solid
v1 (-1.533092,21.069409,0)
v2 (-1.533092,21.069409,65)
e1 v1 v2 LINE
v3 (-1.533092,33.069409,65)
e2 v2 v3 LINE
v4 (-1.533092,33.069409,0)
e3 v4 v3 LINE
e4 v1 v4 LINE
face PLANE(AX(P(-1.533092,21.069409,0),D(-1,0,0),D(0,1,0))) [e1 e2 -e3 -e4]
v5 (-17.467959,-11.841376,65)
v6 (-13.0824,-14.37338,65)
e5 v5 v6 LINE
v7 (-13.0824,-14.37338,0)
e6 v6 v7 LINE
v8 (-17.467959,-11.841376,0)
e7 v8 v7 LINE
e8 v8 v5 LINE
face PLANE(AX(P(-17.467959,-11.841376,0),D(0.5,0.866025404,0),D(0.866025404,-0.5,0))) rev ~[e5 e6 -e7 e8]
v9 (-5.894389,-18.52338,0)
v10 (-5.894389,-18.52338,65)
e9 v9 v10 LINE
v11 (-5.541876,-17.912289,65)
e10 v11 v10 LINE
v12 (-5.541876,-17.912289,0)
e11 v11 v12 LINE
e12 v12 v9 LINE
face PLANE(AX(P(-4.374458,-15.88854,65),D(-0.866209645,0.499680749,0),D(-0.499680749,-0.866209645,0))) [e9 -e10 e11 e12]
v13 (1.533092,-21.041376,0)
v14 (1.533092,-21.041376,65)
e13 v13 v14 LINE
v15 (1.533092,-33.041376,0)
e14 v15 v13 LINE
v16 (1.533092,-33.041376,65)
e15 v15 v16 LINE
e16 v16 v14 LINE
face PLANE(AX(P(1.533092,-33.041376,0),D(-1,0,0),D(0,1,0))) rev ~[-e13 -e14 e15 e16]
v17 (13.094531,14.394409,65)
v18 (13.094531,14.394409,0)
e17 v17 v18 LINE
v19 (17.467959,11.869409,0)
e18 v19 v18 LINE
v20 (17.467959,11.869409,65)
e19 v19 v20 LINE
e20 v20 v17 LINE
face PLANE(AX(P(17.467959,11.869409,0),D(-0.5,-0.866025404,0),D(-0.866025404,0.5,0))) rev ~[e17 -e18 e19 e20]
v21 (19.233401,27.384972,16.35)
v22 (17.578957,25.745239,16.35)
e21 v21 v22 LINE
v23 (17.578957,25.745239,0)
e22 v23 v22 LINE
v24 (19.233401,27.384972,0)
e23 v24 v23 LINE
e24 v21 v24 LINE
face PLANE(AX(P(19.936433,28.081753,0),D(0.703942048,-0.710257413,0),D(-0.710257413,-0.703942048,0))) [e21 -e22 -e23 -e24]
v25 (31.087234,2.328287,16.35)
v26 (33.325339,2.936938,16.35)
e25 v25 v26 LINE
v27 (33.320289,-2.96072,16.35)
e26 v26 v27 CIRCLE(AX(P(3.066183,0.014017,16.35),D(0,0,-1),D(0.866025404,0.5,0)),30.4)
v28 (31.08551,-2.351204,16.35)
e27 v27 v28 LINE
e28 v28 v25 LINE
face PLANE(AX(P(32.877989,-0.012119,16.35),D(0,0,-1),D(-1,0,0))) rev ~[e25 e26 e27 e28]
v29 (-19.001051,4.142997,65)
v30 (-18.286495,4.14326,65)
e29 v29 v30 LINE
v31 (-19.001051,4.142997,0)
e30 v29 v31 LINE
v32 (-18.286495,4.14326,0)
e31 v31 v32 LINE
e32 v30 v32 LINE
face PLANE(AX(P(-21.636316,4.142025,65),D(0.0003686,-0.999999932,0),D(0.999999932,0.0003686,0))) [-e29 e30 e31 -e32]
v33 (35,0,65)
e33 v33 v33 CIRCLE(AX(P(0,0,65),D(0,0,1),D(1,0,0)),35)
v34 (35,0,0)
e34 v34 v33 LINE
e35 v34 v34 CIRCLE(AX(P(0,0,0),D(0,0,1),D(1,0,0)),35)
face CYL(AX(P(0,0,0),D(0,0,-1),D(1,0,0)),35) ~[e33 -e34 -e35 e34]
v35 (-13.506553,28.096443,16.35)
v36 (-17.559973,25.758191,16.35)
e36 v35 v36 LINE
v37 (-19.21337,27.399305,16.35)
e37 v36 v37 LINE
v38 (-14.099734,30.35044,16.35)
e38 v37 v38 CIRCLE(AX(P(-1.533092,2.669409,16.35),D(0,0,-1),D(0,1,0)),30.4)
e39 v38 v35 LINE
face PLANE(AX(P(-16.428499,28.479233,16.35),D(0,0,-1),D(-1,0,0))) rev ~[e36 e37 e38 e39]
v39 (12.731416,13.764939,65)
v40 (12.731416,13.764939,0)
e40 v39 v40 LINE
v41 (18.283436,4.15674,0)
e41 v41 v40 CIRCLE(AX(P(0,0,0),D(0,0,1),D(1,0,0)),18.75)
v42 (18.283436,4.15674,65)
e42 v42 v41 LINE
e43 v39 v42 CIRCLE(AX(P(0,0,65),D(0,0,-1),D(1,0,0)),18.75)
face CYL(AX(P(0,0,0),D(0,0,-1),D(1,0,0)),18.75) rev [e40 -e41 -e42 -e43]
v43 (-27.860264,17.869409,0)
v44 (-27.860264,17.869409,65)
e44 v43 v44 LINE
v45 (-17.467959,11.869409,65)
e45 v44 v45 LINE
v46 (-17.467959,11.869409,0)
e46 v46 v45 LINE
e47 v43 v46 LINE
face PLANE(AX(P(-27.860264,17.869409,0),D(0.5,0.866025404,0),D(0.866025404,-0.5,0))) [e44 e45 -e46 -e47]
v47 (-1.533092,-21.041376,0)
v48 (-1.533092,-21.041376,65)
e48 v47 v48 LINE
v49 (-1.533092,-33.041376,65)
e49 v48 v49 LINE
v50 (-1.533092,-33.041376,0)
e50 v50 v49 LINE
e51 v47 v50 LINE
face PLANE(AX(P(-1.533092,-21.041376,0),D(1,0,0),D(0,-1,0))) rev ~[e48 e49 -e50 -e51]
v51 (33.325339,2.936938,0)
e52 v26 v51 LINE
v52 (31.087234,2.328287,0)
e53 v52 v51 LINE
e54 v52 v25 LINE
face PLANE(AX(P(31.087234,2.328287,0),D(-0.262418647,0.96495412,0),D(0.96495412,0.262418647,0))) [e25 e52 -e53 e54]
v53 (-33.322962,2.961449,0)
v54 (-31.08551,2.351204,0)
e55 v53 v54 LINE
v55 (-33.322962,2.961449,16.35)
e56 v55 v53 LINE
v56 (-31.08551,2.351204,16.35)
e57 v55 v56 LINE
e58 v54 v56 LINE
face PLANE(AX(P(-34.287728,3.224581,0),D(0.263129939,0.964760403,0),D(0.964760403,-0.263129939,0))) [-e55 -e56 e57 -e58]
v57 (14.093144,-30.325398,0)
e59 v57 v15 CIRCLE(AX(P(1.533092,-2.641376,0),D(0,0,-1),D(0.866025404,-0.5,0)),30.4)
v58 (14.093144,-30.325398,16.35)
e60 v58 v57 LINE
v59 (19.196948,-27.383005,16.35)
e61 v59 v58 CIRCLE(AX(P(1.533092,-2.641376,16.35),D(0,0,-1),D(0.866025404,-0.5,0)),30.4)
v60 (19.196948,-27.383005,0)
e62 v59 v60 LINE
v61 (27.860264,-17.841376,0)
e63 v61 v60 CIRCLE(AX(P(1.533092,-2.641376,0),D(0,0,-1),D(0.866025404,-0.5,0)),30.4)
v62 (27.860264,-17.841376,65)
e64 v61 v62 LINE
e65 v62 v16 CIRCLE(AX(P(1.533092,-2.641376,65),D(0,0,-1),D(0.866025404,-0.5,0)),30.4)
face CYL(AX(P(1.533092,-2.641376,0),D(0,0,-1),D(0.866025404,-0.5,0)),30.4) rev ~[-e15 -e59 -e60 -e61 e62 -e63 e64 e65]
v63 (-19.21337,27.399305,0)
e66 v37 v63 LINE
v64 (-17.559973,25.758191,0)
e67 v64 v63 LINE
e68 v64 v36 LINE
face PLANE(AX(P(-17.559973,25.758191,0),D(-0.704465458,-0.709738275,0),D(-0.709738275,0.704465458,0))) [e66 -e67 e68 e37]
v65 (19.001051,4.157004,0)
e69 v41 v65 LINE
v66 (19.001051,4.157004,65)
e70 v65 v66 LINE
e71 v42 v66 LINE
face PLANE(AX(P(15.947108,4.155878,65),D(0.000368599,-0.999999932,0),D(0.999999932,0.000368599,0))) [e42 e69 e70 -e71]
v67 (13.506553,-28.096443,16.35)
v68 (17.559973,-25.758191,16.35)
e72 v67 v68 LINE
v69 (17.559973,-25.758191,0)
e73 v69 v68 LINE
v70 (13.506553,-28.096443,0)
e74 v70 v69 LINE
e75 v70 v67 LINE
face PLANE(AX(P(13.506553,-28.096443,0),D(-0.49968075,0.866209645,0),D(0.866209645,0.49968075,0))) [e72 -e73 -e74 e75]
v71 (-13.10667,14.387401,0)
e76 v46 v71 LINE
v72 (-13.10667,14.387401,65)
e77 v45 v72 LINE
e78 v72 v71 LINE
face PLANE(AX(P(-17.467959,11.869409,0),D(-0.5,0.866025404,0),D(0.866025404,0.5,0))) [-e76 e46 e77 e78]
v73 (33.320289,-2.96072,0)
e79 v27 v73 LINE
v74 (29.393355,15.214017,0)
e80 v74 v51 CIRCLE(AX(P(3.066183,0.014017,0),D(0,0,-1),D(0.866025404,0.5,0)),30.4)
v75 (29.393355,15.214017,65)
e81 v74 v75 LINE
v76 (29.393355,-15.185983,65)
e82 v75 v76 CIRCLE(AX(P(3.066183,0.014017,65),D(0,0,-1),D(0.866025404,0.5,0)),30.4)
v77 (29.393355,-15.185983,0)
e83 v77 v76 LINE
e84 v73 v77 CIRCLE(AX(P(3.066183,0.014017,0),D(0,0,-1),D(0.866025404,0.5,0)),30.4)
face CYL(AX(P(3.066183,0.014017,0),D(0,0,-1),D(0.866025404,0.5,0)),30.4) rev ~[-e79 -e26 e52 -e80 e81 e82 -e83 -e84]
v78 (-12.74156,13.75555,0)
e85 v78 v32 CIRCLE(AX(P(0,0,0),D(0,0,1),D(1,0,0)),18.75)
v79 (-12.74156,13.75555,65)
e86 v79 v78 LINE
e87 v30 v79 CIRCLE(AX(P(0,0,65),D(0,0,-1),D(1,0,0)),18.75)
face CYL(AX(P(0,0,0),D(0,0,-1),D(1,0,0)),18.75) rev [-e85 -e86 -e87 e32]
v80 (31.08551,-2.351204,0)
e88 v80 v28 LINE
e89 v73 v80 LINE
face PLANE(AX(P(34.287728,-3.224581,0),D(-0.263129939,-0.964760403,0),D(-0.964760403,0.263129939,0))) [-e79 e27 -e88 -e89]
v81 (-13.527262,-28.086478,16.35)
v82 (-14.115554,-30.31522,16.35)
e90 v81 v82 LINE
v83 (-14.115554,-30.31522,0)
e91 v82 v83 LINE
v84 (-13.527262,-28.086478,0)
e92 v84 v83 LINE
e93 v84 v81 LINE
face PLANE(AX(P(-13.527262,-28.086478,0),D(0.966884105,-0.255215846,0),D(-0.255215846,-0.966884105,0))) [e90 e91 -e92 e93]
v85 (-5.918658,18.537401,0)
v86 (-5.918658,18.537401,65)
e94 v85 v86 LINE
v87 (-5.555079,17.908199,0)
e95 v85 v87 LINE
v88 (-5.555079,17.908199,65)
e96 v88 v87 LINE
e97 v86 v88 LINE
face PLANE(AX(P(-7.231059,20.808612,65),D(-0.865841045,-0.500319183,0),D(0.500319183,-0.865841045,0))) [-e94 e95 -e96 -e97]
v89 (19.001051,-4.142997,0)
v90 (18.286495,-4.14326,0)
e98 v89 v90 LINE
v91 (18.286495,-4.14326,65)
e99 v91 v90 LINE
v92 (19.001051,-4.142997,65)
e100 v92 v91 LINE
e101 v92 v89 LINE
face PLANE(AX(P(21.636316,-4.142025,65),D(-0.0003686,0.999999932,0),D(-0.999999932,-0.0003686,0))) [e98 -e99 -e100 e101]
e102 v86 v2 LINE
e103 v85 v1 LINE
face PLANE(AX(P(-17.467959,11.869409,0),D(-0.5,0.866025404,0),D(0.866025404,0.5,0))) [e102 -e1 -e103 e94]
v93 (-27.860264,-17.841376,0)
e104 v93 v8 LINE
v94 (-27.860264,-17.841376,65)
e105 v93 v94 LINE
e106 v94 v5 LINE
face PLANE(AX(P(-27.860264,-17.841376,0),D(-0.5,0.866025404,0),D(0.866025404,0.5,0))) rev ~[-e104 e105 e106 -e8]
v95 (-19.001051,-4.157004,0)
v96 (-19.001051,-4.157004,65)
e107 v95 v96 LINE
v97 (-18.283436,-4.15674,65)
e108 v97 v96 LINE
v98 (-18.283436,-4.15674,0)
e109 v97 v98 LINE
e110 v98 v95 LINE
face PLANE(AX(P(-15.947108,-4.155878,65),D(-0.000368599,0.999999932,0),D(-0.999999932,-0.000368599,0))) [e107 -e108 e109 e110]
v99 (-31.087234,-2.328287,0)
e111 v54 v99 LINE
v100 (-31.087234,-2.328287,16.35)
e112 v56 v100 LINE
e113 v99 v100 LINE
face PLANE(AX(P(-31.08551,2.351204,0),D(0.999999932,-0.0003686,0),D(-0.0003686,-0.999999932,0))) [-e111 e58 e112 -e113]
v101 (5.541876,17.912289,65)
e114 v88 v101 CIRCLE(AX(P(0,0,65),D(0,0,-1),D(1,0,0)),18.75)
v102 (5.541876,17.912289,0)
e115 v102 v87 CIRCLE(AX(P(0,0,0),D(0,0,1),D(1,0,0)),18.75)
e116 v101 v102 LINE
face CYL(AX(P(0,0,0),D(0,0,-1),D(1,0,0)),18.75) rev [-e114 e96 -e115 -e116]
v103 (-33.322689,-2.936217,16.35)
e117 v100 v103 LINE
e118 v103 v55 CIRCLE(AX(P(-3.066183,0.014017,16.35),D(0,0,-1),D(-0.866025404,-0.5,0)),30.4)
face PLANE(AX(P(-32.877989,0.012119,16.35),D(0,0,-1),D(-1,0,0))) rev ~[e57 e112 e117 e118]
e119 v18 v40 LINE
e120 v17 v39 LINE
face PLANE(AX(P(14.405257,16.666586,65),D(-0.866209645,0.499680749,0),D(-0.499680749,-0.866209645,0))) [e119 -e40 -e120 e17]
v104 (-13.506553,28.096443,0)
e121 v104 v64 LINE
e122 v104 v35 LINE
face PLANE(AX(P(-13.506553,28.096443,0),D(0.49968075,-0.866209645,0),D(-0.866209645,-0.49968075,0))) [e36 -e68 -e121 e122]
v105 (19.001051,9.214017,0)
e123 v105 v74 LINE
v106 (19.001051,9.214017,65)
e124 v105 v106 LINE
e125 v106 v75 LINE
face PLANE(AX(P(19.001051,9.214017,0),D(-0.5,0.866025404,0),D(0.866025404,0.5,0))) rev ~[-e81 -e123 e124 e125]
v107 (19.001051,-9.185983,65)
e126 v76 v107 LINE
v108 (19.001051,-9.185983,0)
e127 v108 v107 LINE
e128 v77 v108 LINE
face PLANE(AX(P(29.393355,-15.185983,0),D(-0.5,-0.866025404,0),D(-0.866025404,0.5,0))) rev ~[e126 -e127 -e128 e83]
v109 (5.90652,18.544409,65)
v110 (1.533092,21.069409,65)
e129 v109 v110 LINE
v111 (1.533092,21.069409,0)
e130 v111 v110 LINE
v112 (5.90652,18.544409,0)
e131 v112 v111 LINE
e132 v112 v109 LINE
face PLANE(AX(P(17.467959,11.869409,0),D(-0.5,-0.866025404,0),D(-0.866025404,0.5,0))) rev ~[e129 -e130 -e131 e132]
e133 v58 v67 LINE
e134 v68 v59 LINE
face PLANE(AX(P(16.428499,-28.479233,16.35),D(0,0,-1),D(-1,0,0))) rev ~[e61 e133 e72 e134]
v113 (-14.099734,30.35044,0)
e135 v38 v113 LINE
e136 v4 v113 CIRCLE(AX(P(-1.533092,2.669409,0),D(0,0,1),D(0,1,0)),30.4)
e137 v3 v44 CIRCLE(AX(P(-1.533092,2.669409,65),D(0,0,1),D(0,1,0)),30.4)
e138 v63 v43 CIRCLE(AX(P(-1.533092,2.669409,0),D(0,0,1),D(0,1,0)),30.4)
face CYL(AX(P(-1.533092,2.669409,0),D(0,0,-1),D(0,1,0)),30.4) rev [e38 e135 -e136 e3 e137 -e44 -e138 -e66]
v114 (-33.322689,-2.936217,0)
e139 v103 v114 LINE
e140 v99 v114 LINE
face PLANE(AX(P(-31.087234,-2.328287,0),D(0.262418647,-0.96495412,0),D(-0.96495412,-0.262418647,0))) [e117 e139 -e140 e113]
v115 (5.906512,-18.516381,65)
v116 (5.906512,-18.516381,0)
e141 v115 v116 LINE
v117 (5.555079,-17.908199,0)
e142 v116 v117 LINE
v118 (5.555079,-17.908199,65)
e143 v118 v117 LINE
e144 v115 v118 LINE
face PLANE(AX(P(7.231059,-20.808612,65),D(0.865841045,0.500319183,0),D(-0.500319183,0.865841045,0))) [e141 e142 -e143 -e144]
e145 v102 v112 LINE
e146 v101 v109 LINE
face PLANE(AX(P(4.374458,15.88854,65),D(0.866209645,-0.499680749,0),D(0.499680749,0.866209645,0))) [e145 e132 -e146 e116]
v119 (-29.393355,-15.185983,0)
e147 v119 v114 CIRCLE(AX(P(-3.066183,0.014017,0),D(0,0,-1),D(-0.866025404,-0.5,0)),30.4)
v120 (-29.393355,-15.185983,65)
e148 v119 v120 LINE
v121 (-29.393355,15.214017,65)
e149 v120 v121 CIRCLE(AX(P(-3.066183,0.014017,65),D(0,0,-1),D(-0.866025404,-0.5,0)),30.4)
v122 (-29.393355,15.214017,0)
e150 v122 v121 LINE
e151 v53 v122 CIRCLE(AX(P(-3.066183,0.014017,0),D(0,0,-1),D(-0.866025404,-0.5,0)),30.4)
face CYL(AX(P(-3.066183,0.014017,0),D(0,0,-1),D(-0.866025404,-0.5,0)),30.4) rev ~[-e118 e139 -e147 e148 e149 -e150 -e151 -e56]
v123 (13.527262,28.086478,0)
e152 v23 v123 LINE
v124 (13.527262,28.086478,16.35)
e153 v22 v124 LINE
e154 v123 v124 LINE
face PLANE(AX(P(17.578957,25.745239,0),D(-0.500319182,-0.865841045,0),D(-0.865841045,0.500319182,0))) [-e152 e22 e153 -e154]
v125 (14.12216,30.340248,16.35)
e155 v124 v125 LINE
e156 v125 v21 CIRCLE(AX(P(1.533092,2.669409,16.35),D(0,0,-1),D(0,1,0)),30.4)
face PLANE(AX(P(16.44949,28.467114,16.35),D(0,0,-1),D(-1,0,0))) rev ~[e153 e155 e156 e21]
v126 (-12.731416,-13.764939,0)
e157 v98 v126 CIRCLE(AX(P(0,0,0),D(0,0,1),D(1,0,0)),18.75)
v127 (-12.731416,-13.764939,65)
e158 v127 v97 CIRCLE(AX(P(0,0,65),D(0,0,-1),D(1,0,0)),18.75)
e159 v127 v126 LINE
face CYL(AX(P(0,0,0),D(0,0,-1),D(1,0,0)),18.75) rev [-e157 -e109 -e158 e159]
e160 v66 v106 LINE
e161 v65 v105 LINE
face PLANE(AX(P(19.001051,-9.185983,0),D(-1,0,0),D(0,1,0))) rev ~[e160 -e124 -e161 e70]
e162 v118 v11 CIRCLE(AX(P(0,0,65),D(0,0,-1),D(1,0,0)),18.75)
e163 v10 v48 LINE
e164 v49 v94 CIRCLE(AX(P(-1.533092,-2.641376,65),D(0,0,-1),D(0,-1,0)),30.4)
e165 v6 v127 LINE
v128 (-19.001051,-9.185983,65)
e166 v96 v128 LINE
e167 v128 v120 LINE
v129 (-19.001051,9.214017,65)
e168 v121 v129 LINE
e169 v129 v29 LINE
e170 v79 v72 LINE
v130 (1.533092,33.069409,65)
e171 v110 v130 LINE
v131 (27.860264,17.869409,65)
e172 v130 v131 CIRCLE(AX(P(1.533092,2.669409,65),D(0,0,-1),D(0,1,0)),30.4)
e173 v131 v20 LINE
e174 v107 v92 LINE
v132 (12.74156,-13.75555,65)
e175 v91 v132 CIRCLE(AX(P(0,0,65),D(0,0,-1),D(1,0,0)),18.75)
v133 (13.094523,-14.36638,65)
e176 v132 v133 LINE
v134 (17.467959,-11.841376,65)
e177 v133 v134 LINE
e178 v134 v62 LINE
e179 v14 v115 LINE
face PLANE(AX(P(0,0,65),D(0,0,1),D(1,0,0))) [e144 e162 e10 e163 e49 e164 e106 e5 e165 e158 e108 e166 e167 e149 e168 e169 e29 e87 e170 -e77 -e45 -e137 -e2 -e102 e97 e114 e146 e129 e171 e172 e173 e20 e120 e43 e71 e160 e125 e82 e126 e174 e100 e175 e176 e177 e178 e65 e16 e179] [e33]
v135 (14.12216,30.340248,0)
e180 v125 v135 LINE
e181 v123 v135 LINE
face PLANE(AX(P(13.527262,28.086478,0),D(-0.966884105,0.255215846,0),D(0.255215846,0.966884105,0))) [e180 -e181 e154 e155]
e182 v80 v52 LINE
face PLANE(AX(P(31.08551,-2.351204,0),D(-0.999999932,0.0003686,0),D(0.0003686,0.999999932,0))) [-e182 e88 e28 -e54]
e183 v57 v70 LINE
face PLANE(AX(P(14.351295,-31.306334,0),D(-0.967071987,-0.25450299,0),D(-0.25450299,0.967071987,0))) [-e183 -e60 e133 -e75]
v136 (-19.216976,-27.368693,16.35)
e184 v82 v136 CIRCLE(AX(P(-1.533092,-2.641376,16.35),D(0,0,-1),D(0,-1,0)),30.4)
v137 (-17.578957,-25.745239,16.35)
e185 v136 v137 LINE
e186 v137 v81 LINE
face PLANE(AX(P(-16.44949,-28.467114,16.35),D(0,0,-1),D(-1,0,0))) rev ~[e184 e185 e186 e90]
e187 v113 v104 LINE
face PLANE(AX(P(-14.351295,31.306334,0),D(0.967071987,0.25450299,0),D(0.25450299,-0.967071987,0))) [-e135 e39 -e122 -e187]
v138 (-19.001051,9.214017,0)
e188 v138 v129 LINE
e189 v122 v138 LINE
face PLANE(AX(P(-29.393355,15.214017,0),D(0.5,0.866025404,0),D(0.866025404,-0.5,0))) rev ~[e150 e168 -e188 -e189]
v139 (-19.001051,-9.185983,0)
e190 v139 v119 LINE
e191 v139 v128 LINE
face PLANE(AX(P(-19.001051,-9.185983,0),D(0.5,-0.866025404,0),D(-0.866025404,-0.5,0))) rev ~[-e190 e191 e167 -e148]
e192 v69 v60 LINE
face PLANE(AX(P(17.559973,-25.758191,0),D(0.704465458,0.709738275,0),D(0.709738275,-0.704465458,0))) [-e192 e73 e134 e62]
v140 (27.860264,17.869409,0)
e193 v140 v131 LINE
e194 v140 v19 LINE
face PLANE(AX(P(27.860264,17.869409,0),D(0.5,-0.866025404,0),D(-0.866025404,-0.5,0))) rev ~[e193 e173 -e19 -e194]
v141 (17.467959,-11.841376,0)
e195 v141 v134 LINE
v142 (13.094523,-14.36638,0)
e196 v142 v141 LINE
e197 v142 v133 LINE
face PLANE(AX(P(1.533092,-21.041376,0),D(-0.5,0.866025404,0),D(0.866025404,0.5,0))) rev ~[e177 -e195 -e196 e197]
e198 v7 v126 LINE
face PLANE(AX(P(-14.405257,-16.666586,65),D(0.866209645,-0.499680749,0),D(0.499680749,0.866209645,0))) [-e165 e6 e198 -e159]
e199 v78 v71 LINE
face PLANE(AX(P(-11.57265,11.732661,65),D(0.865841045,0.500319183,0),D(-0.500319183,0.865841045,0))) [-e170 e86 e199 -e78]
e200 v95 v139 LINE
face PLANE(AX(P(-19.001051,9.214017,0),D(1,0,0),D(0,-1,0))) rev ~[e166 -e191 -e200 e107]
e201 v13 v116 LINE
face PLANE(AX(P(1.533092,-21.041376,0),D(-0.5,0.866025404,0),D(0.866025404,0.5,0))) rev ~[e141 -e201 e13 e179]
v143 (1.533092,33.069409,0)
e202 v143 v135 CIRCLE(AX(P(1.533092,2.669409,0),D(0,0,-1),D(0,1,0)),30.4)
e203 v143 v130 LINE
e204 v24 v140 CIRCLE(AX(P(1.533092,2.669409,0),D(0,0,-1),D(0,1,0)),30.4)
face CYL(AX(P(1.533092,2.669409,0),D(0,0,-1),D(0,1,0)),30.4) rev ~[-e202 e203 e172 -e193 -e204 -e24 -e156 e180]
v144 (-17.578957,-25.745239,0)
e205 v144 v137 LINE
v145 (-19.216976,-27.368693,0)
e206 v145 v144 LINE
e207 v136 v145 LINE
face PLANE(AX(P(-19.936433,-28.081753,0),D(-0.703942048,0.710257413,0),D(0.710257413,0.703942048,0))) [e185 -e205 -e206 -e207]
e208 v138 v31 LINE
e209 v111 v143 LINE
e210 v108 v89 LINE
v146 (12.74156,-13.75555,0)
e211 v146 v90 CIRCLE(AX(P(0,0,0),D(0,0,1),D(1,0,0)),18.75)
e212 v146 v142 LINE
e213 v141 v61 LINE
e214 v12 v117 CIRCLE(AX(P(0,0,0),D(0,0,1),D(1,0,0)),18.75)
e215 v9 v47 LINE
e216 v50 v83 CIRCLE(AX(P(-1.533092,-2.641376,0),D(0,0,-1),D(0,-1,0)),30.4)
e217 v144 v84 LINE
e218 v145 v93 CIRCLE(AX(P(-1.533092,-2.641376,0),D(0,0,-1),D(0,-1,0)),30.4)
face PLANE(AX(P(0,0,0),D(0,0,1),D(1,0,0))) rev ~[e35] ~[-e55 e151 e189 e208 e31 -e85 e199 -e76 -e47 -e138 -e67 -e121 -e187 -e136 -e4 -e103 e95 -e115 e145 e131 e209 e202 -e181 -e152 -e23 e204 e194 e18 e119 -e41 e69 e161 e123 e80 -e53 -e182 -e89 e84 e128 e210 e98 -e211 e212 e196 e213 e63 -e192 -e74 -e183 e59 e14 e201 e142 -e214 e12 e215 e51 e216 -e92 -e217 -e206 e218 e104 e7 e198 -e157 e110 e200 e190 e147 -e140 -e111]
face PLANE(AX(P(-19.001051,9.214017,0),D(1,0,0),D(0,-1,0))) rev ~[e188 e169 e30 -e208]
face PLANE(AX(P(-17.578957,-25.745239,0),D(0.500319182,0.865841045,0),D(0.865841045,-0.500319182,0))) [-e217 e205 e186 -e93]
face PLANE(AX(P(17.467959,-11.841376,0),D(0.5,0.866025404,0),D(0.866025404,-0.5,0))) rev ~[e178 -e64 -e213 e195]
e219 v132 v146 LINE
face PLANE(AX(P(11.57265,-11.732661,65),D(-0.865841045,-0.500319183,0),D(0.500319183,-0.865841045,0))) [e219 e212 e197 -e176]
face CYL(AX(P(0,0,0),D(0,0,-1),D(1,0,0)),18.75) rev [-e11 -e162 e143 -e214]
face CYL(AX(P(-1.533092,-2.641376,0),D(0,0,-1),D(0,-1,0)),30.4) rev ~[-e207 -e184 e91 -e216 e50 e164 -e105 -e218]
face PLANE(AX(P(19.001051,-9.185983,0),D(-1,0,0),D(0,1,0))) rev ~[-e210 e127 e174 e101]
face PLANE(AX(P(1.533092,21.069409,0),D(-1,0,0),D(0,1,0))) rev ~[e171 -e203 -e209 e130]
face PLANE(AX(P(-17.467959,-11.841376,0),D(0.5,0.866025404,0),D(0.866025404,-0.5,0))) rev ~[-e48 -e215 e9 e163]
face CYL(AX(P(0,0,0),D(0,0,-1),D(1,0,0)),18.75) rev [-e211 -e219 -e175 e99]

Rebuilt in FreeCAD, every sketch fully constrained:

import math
import FreeCAD as App
import Part
import Sketcher
Q = App.Units.Quantity

doc = App.newDocument("Part")
body = doc.addObject("PartDesign::Body", "Body")

# Sketch on XY plane
sketch1 = doc.addObject("Sketcher::SketchObject", "Sketch")
body.addObject(sketch1)
sketch1.AttachmentSupport = (doc.XY_Plane, [""])
sketch1.MapMode = "FlatFace"
sketch1.addGeometry(Part.Circle(App.Vector(0, 0, 0), App.Vector(0, 0, 1), 35), False)
sketch1.addGeometry(Part.LineSegment(App.Vector(-17.467959, -11.841376, 0), App.Vector(-1.533092, -21.041376, 0)), False)
sketch1.addGeometry(Part.LineSegment(App.Vector(-1.533092, -21.041376, 0), App.Vector(-1.533092, -33.041376, 0)), False)
sketch1.addGeometry(Part.ArcOfCircle(Part.Circle(App.Vector(-1.533092, -2.641376, 0), App.Vector(0, 0, 1), 30.4), math.radians(-150), math.radians(-90)), False)
sketch1.addGeometry(Part.LineSegment(App.Vector(-27.860264, -17.841376, 0), App.Vector(-17.467959, -11.841376, 0)), False)
sketch1.addGeometry(Part.LineSegment(App.Vector(1.533092, -21.041376, 0), App.Vector(17.467959, -11.841376, 0)), False)
sketch1.addGeometry(Part.LineSegment(App.Vector(17.467959, -11.841376, 0), App.Vector(27.860264, -17.841376, 0)), False)
sketch1.addGeometry(Part.ArcOfCircle(Part.Circle(App.Vector(1.533092, -2.641376, 0), App.Vector(0, 0, 1), 30.4), math.radians(-90), math.radians(-30)), False)
sketch1.addGeometry(Part.LineSegment(App.Vector(1.533092, -33.041376, 0), App.Vector(1.533092, -21.041376, 0)), False)
sketch1.addGeometry(Part.LineSegment(App.Vector(-19.001051, 9.214017, 0), App.Vector(-19.001051, -9.185983, 0)), False)
sketch1.addGeometry(Part.LineSegment(App.Vector(-19.001051, -9.185983, 0), App.Vector(-29.393355, -15.185983, 0)), False)
sketch1.addGeometry(Part.ArcOfCircle(Part.Circle(App.Vector(-3.066183, 0.014017, 0), App.Vector(0, 0, 1), 30.4), math.radians(150), math.radians(210)), False)
sketch1.addGeometry(Part.LineSegment(App.Vector(-29.393355, 15.214017, 0), App.Vector(-19.001051, 9.214017, 0)), False)
sketch1.addGeometry(Part.LineSegment(App.Vector(-1.533092, 33.069409, 0), App.Vector(-1.533092, 21.069409, 0)), False)
sketch1.addGeometry(Part.LineSegment(App.Vector(-1.533092, 21.069409, 0), App.Vector(-17.467959, 11.869409, 0)), False)
sketch1.addGeometry(Part.LineSegment(App.Vector(-17.467959, 11.869409, 0), App.Vector(-27.860264, 17.869409, 0)), False)
sketch1.addGeometry(Part.ArcOfCircle(Part.Circle(App.Vector(-1.533092, 2.669409, 0), App.Vector(0, 0, 1), 30.4), math.radians(90), math.radians(150)), False)
sketch1.addGeometry(Part.LineSegment(App.Vector(19.001051, -9.185983, 0), App.Vector(19.001051, 9.214017, 0)), False)
sketch1.addGeometry(Part.LineSegment(App.Vector(19.001051, 9.214017, 0), App.Vector(29.393355, 15.214017, 0)), False)
sketch1.addGeometry(Part.ArcOfCircle(Part.Circle(App.Vector(3.066183, 0.014017, 0), App.Vector(0, 0, 1), 30.4), math.radians(-30), math.radians(30)), False)
sketch1.addGeometry(Part.LineSegment(App.Vector(29.393355, -15.185983, 0), App.Vector(19.001051, -9.185983, 0)), False)
sketch1.addGeometry(Part.LineSegment(App.Vector(17.467959, 11.869409, 0), App.Vector(1.533092, 21.069409, 0)), False)
sketch1.addGeometry(Part.LineSegment(App.Vector(1.533092, 21.069409, 0), App.Vector(1.533092, 33.069409, 0)), False)
sketch1.addGeometry(Part.ArcOfCircle(Part.Circle(App.Vector(1.533092, 2.669409, 0), App.Vector(0, 0, 1), 30.4), math.radians(30), math.radians(90)), False)
sketch1.addGeometry(Part.LineSegment(App.Vector(27.860264, 17.869409, 0), App.Vector(17.467959, 11.869409, 0)), False)
sketch1.addConstraint(Sketcher.Constraint("Coincident", 1, 2, 2, 1))
sketch1.addConstraint(Sketcher.Constraint("Coincident", 2, 2, 3, 2))
sketch1.addConstraint(Sketcher.Constraint("Coincident", 3, 1, 4, 1))
sketch1.addConstraint(Sketcher.Constraint("Coincident", 4, 2, 1, 1))
sketch1.addConstraint(Sketcher.Constraint("Coincident", 5, 2, 6, 1))
sketch1.addConstraint(Sketcher.Constraint("Coincident", 6, 2, 7, 2))
sketch1.addConstraint(Sketcher.Constraint("Coincident", 7, 1, 8, 1))
sketch1.addConstraint(Sketcher.Constraint("Coincident", 8, 2, 5, 1))
sketch1.addConstraint(Sketcher.Constraint("Coincident", 9, 2, 10, 1))
sketch1.addConstraint(Sketcher.Constraint("Coincident", 10, 2, 11, 2))
sketch1.addConstraint(Sketcher.Constraint("Coincident", 11, 1, 12, 1))
sketch1.addConstraint(Sketcher.Constraint("Coincident", 12, 2, 9, 1))
sketch1.addConstraint(Sketcher.Constraint("Coincident", 13, 2, 14, 1))
sketch1.addConstraint(Sketcher.Constraint("Coincident", 14, 2, 15, 1))
sketch1.addConstraint(Sketcher.Constraint("Coincident", 15, 2, 16, 2))
sketch1.addConstraint(Sketcher.Constraint("Coincident", 16, 1, 13, 1))
sketch1.addConstraint(Sketcher.Constraint("Coincident", 17, 2, 18, 1))
sketch1.addConstraint(Sketcher.Constraint("Coincident", 18, 2, 19, 2))
sketch1.addConstraint(Sketcher.Constraint("Coincident", 19, 1, 20, 1))
sketch1.addConstraint(Sketcher.Constraint("Coincident", 20, 2, 17, 1))
sketch1.addConstraint(Sketcher.Constraint("Coincident", 21, 2, 22, 1))
sketch1.addConstraint(Sketcher.Constraint("Coincident", 22, 2, 23, 2))
sketch1.addConstraint(Sketcher.Constraint("Coincident", 23, 1, 24, 1))
sketch1.addConstraint(Sketcher.Constraint("Coincident", 24, 2, 21, 1))
sketch1.addConstraint(Sketcher.Constraint("Vertical", 2))
sketch1.addConstraint(Sketcher.Constraint("Vertical", 8))
sketch1.addConstraint(Sketcher.Constraint("Vertical", 9))
sketch1.addConstraint(Sketcher.Constraint("Vertical", 13))
sketch1.addConstraint(Sketcher.Constraint("Vertical", 17))
sketch1.addConstraint(Sketcher.Constraint("Vertical", 22))
sketch1.addConstraint(Sketcher.Constraint("Coincident", 0, 3, -1, 1))
sketch1.addConstraint(Sketcher.Constraint("Equal", 3, 7))
sketch1.addConstraint(Sketcher.Constraint("Equal", 7, 11))
sketch1.addConstraint(Sketcher.Constraint("Equal", 11, 16))
sketch1.addConstraint(Sketcher.Constraint("Equal", 16, 19))
sketch1.addConstraint(Sketcher.Constraint("Equal", 19, 23))
sketch1.addConstraint(Sketcher.Constraint("Symmetric", 3, 3, 7, 3, -2))
sketch1.addConstraint(Sketcher.Constraint("Symmetric", 11, 3, 19, 3, -2))
sketch1.addConstraint(Sketcher.Constraint("Symmetric", 16, 3, 23, 3, -2))
sketch1.addConstraint(Sketcher.Constraint("Symmetric", 4, 2, 5, 2, -2))
sketch1.addConstraint(Sketcher.Constraint("Symmetric", 1, 2, 8, 2, -2))
sketch1.addConstraint(Sketcher.Constraint("Symmetric", 12, 2, 17, 2, -2))
sketch1.addConstraint(Sketcher.Constraint("Symmetric", 13, 2, 21, 2, -2))
sketch1.addConstraint(Sketcher.Constraint("Symmetric", 14, 2, 24, 2, -2))
sketch1.addConstraint(Sketcher.Constraint("Parallel", 4, 5))
sketch1.addConstraint(Sketcher.Constraint("Parallel", 1, 6))
sketch1.addConstraint(Sketcher.Constraint("Parallel", 5, 10))
sketch1.addConstraint(Sketcher.Constraint("Parallel", 6, 12))
sketch1.addConstraint(Sketcher.Constraint("Parallel", 10, 14))
sketch1.addConstraint(Sketcher.Constraint("Parallel", 12, 15))
sketch1.addConstraint(Sketcher.Constraint("Parallel", 14, 18))
sketch1.addConstraint(Sketcher.Constraint("Parallel", 15, 20))
sketch1.addConstraint(Sketcher.Constraint("Parallel", 18, 24))
sketch1.addConstraint(Sketcher.Constraint("Horizontal", 10, 2, 19, 1))
sketch1.addConstraint(Sketcher.Constraint("Vertical", 3, 3, 16, 3))
sketch1.addConstraint(Sketcher.Constraint("Vertical", 16, 3, 1, 2))
sketch1.addConstraint(Sketcher.Constraint("Vertical", 10, 2, 11, 1))
sketch1.addConstraint(Sketcher.Constraint("Vertical", 2, 2, 13, 2))
sketch1.addConstraint(Sketcher.Constraint("Vertical", 4, 2, 14, 2))
sketch1.addConstraint(Sketcher.Constraint("Vertical", 3, 1, 15, 2))
sketch1.addConstraint(Sketcher.Constraint("Equal", 6, 10))
sketch1.addConstraint(Sketcher.Constraint("Diameter", 0, Q("70 mm")))
sketch1.addConstraint(Sketcher.Constraint("Radius", 3, Q("30.4 mm")))
sketch1.addConstraint(Sketcher.Constraint("DistanceY", 2, 2, 2, 1, Q("12 mm")))
sketch1.addConstraint(Sketcher.Constraint("Angle", 1, Q("-30 deg")))
sketch1.addConstraint(Sketcher.Constraint("Distance", 4, Q("12 mm")))
sketch1.addConstraint(Sketcher.Constraint("DistanceY", 9, 2, 9, 1, Q("18.4 mm")))
sketch1.addConstraint(Sketcher.Constraint("DistanceX", 3, 3, -1, 1, Q("1.533092 mm")))
sketch1.addConstraint(Sketcher.Constraint("DistanceY", -1, 1, 16, 3, Q("2.669409 mm")))
sketch1.addConstraint(Sketcher.Constraint("DistanceX", 9, 2, -1, 1, Q("19.001051 mm")))
sketch1.addConstraint(Sketcher.Constraint("DistanceY", 3, 3, -1, 1, Q("2.641376 mm")))
sketch1.addConstraint(Sketcher.Constraint("DistanceY", -1, 1, 11, 3, Q("0.014017 mm")))
pad1 = doc.addObject("PartDesign::Pad", "Pad")
body.addObject(pad1)
pad1.Profile = sketch1
pad1.Length = 65

# Sketch on XY plane
sketch2 = doc.addObject("Sketcher::SketchObject", "Sketch001")
body.addObject(sketch2)
sketch2.AttachmentSupport = (doc.XY_Plane, [""])
sketch2.MapMode = "FlatFace"
sketch2.addGeometry(Part.Circle(App.Vector(0, 0, 0), App.Vector(0, 0, 1), 18.75), False)
sketch2.addConstraint(Sketcher.Constraint("Coincident", 0, 3, -1, 1))
sketch2.addConstraint(Sketcher.Constraint("Diameter", 0, Q("37.5 mm")))
pocket1 = doc.addObject("PartDesign::Pocket", "Pocket")
body.addObject(pocket1)
pocket1.Profile = sketch2
pocket1.Length = 82.700673
pocket1.Reversed = True

# Sketch on XY plane
sketch3 = doc.addObject("Sketcher::SketchObject", "Sketch002")
body.addObject(sketch3)
sketch3.AttachmentSupport = (doc.XY_Plane, [""])
sketch3.MapMode = "FlatFace"
sketch3.addGeometry(Part.LineSegment(App.Vector(-14.351295, 31.306334, 0), App.Vector(-13.506553, 28.096443, 0)), False)
sketch3.addGeometry(Part.LineSegment(App.Vector(-13.506553, 28.096443, 0), App.Vector(-17.559973, 25.758191, 0)), False)
sketch3.addGeometry(Part.LineSegment(App.Vector(-17.559973, 25.758191, 0), App.Vector(-19.915726, 28.096443, 0)), False)
sketch3.addGeometry(Part.ArcOfCircle(Part.Circle(App.Vector(0, 0, 0), App.Vector(0, 0, 1), 34.439022), math.radians(114.627435), math.radians(125.330327)), False)
sketch3.addGeometry(Part.LineSegment(App.Vector(-34.287728, 3.224581, 0), App.Vector(-31.08551, 2.351204, 0)), False)
sketch3.addGeometry(Part.LineSegment(App.Vector(-31.08551, 2.351204, 0), App.Vector(-31.087234, -2.328287, 0)), False)
sketch3.addGeometry(Part.LineSegment(App.Vector(-31.087234, -2.328287, 0), App.Vector(-34.290096, -3.199303, 0)), False)
sketch3.addGeometry(Part.ArcOfCircle(Part.Circle(App.Vector(0, 0, 0), App.Vector(0, 0, 1), 34.439022), math.radians(174.627435), math.radians(185.330327)), False)
sketch3.addGeometry(Part.LineSegment(App.Vector(-19.936433, -28.081753, 0), App.Vector(-17.578957, -25.745239, 0)), False)
sketch3.addGeometry(Part.LineSegment(App.Vector(-17.578957, -25.745239, 0), App.Vector(-13.527262, -28.086478, 0)), False)
sketch3.addGeometry(Part.LineSegment(App.Vector(-13.527262, -28.086478, 0), App.Vector(-14.37437, -31.295746, 0)), False)
sketch3.addGeometry(Part.ArcOfCircle(Part.Circle(App.Vector(0, 0, 0), App.Vector(0, 0, 1), 34.439022), math.radians(-125.372565), math.radians(-114.669673)), False)
sketch3.addGeometry(Part.LineSegment(App.Vector(14.351295, -31.306334, 0), App.Vector(13.506553, -28.096443, 0)), False)
sketch3.addGeometry(Part.LineSegment(App.Vector(13.506553, -28.096443, 0), App.Vector(17.559973, -25.758191, 0)), False)
sketch3.addGeometry(Part.LineSegment(App.Vector(17.559973, -25.758191, 0), App.Vector(19.915726, -28.096443, 0)), False)
sketch3.addGeometry(Part.ArcOfCircle(Part.Circle(App.Vector(0, 0, 0), App.Vector(0, 0, 1), 34.439022), math.radians(-65.372565), math.radians(-54.669673)), False)
sketch3.addGeometry(Part.LineSegment(App.Vector(34.287728, -3.224581, 0), App.Vector(31.08551, -2.351204, 0)), False)
sketch3.addGeometry(Part.LineSegment(App.Vector(31.08551, -2.351204, 0), App.Vector(31.087234, 2.328287, 0)), False)
sketch3.addGeometry(Part.LineSegment(App.Vector(31.087234, 2.328287, 0), App.Vector(34.290096, 3.199303, 0)), False)
sketch3.addGeometry(Part.ArcOfCircle(Part.Circle(App.Vector(0, 0, 0), App.Vector(0, 0, 1), 34.439022), math.radians(-5.372565), math.radians(5.330327)), False)
sketch3.addGeometry(Part.LineSegment(App.Vector(19.936433, 28.081753, 0), App.Vector(17.578957, 25.745239, 0)), False)
sketch3.addGeometry(Part.LineSegment(App.Vector(17.578957, 25.745239, 0), App.Vector(13.527262, 28.086478, 0)), False)
sketch3.addGeometry(Part.LineSegment(App.Vector(13.527262, 28.086478, 0), App.Vector(14.37437, 31.295746, 0)), False)
sketch3.addGeometry(Part.ArcOfCircle(Part.Circle(App.Vector(0, 0, 0), App.Vector(0, 0, 1), 34.439022), math.radians(54.627435), math.radians(65.330327)), False)
sketch3.addConstraint(Sketcher.Constraint("Coincident", 0, 2, 1, 1))
sketch3.addConstraint(Sketcher.Constraint("Coincident", 1, 2, 2, 1))
sketch3.addConstraint(Sketcher.Constraint("Coincident", 2, 2, 3, 2))
sketch3.addConstraint(Sketcher.Constraint("Coincident", 3, 1, 0, 1))
sketch3.addConstraint(Sketcher.Constraint("Coincident", 4, 2, 5, 1))
sketch3.addConstraint(Sketcher.Constraint("Coincident", 5, 2, 6, 1))
sketch3.addConstraint(Sketcher.Constraint("Coincident", 6, 2, 7, 2))
sketch3.addConstraint(Sketcher.Constraint("Coincident", 7, 1, 4, 1))
sketch3.addConstraint(Sketcher.Constraint("Coincident", 8, 2, 9, 1))
sketch3.addConstraint(Sketcher.Constraint("Coincident", 9, 2, 10, 1))
sketch3.addConstraint(Sketcher.Constraint("Coincident", 10, 2, 11, 2))
sketch3.addConstraint(Sketcher.Constraint("Coincident", 11, 1, 8, 1))
sketch3.addConstraint(Sketcher.Constraint("Coincident", 12, 2, 13, 1))
sketch3.addConstraint(Sketcher.Constraint("Coincident", 13, 2, 14, 1))
sketch3.addConstraint(Sketcher.Constraint("Coincident", 14, 2, 15, 2))
sketch3.addConstraint(Sketcher.Constraint("Coincident", 15, 1, 12, 1))
sketch3.addConstraint(Sketcher.Constraint("Coincident", 16, 2, 17, 1))
sketch3.addConstraint(Sketcher.Constraint("Coincident", 17, 2, 18, 1))
sketch3.addConstraint(Sketcher.Constraint("Coincident", 18, 2, 19, 2))
sketch3.addConstraint(Sketcher.Constraint("Coincident", 19, 1, 16, 1))
sketch3.addConstraint(Sketcher.Constraint("Coincident", 20, 2, 21, 1))
sketch3.addConstraint(Sketcher.Constraint("Coincident", 21, 2, 22, 1))
sketch3.addConstraint(Sketcher.Constraint("Coincident", 22, 2, 23, 2))
sketch3.addConstraint(Sketcher.Constraint("Coincident", 23, 1, 20, 1))
sketch3.addConstraint(Sketcher.Constraint("Coincident", 3, 3, -1, 1))
sketch3.addConstraint(Sketcher.Constraint("Coincident", 7, 3, -1, 1))
sketch3.addConstraint(Sketcher.Constraint("Coincident", 11, 3, -1, 1))
sketch3.addConstraint(Sketcher.Constraint("Coincident", 15, 3, -1, 1))
sketch3.addConstraint(Sketcher.Constraint("Coincident", 19, 3, -1, 1))
sketch3.addConstraint(Sketcher.Constraint("Coincident", 23, 3, -1, 1))
sketch3.addConstraint(Sketcher.Constraint("Equal", 3, 7))
sketch3.addConstraint(Sketcher.Constraint("Equal", 7, 11))
sketch3.addConstraint(Sketcher.Constraint("Equal", 11, 15))
sketch3.addConstraint(Sketcher.Constraint("Equal", 15, 19))
sketch3.addConstraint(Sketcher.Constraint("Equal", 19, 23))
sketch3.addConstraint(Sketcher.Constraint("Symmetric", 0, 2, 12, 2, -1, 1))
sketch3.addConstraint(Sketcher.Constraint("Symmetric", 1, 2, 13, 2, -1, 1))
sketch3.addConstraint(Sketcher.Constraint("Symmetric", 4, 2, 16, 2, -1, 1))
sketch3.addConstraint(Sketcher.Constraint("Symmetric", 5, 2, 17, 2, -1, 1))
sketch3.addConstraint(Sketcher.Constraint("Symmetric", 8, 2, 20, 2, -1, 1))
sketch3.addConstraint(Sketcher.Constraint("Symmetric", 9, 2, 21, 2, -1, 1))
sketch3.addConstraint(Sketcher.Constraint("Parallel", 0, 12))
sketch3.addConstraint(Sketcher.Constraint("Parallel", 2, 14))
sketch3.addConstraint(Sketcher.Constraint("Parallel", 4, 16))
sketch3.addConstraint(Sketcher.Constraint("Parallel", 6, 18))
sketch3.addConstraint(Sketcher.Constraint("Parallel", 8, 20))
sketch3.addConstraint(Sketcher.Constraint("Parallel", 10, 22))
sketch3.addConstraint(Sketcher.Constraint("Horizontal", 0, 2, 2, 2))
sketch3.addConstraint(Sketcher.Constraint("Equal", 0, 2))
sketch3.addConstraint(Sketcher.Constraint("Equal", 2, 4))
sketch3.addConstraint(Sketcher.Constraint("Equal", 1, 5))
sketch3.addConstraint(Sketcher.Constraint("Equal", 4, 6))
sketch3.addConstraint(Sketcher.Constraint("Equal", 6, 8))
sketch3.addConstraint(Sketcher.Constraint("Equal", 5, 9))
sketch3.addConstraint(Sketcher.Constraint("Equal", 8, 10))
sketch3.addConstraint(Sketcher.Constraint("Radius", 3, Q("34.439022 mm")))
sketch3.addConstraint(Sketcher.Constraint("DistanceX", 5, 2, 11, 1, Q("11.150801 mm")))
sketch3.addConstraint(Sketcher.Constraint("Distance", 1, Q("4.679491 mm")))
sketch3.addConstraint(Sketcher.Constraint("DistanceY", -1, 1, 1, 2, Q("25.758191 mm")))
sketch3.addConstraint(Sketcher.Constraint("DistanceX", 4, 2, -1, 1, Q("31.08551 mm")))
sketch3.addConstraint(Sketcher.Constraint("DistanceX", 7, 1, -1, 1, Q("34.287728 mm")))
sketch3.addConstraint(Sketcher.Constraint("DistanceY", 8, 2, -1, 1, Q("25.745239 mm")))
sketch3.addConstraint(Sketcher.Constraint("DistanceX", 9, 2, -1, 1, Q("13.527262 mm")))
sketch3.addConstraint(Sketcher.Constraint("DistanceY", 9, 2, -1, 1, Q("28.086478 mm")))
sketch3.addConstraint(Sketcher.Constraint("DistanceX", 10, 2, -1, 1, Q("14.37437 mm")))
sketch3.addConstraint(Sketcher.Constraint("DistanceX", 1, 2, 0, 2, Q("4.05342 mm")))
pad2 = doc.addObject("PartDesign::Pad", "Pad001")
body.addObject(pad2)
pad2.Profile = sketch3
pad2.Length = 16.35

# Sketch on XY plane
sketch4 = doc.addObject("Sketcher::SketchObject", "Sketch003")
body.addObject(sketch4)
sketch4.AttachmentSupport = (doc.XY_Plane, [""])
sketch4.MapMode = "FlatFace"
sketch4.AttachmentOffset = App.Placement(App.Vector(0, 0, 65), App.Rotation())
sketch4.addGeometry(Part.LineSegment(App.Vector(11.563998, 11.741189, 0), App.Vector(14.405257, 16.666586, 0)), False)
sketch4.addGeometry(Part.LineSegment(App.Vector(14.405257, 16.666586, 0), App.Vector(7.215717, 20.813937, 0)), False)
sketch4.addGeometry(Part.LineSegment(App.Vector(7.215717, 20.813937, 0), App.Vector(4.374458, 15.88854, 0)), False)
sketch4.addGeometry(Part.LineSegment(App.Vector(4.374458, 15.88854, 0), App.Vector(11.563998, 11.741189, 0)), False)
sketch4.addGeometry(Part.LineSegment(App.Vector(21.636316, -4.142025, 0), App.Vector(21.633256, 4.157974, 0)), False)
sketch4.addGeometry(Part.LineSegment(App.Vector(21.633256, 4.157974, 0), App.Vector(15.947108, 4.155878, 0)), False)
sketch4.addGeometry(Part.LineSegment(App.Vector(15.947108, 4.155878, 0), App.Vector(15.950167, -4.144121, 0)), False)
sketch4.addGeometry(Part.LineSegment(App.Vector(15.950167, -4.144121, 0), App.Vector(21.636316, -4.142025, 0)), False)
sketch4.addGeometry(Part.LineSegment(App.Vector(7.231059, -20.808612, 0), App.Vector(14.41754, -16.655962, 0)), False)
sketch4.addGeometry(Part.LineSegment(App.Vector(14.41754, -16.655962, 0), App.Vector(11.57265, -11.732661, 0)), False)
sketch4.addGeometry(Part.LineSegment(App.Vector(11.57265, -11.732661, 0), App.Vector(4.386169, -15.885311, 0)), False)
sketch4.addGeometry(Part.LineSegment(App.Vector(4.386169, -15.885311, 0), App.Vector(7.231059, -20.808612, 0)), False)
sketch4.addGeometry(Part.LineSegment(App.Vector(-14.405257, -16.666586, 0), App.Vector(-7.215717, -20.813937, 0)), False)
sketch4.addGeometry(Part.LineSegment(App.Vector(-7.215717, -20.813937, 0), App.Vector(-4.374458, -15.88854, 0)), False)
sketch4.addGeometry(Part.LineSegment(App.Vector(-4.374458, -15.88854, 0), App.Vector(-11.563998, -11.741189, 0)), False)
sketch4.addGeometry(Part.LineSegment(App.Vector(-11.563998, -11.741189, 0), App.Vector(-14.405257, -16.666586, 0)), False)
sketch4.addGeometry(Part.LineSegment(App.Vector(-21.636316, 4.142025, 0), App.Vector(-21.633256, -4.157974, 0)), False)
sketch4.addGeometry(Part.LineSegment(App.Vector(-21.633256, -4.157974, 0), App.Vector(-15.947108, -4.155878, 0)), False)
sketch4.addGeometry(Part.LineSegment(App.Vector(-15.947108, -4.155878, 0), App.Vector(-15.950167, 4.144121, 0)), False)
sketch4.addGeometry(Part.LineSegment(App.Vector(-15.950167, 4.144121, 0), App.Vector(-21.636316, 4.142025, 0)), False)
sketch4.addGeometry(Part.LineSegment(App.Vector(-7.231059, 20.808612, 0), App.Vector(-14.41754, 16.655962, 0)), False)
sketch4.addGeometry(Part.LineSegment(App.Vector(-14.41754, 16.655962, 0), App.Vector(-11.57265, 11.732661, 0)), False)
sketch4.addGeometry(Part.LineSegment(App.Vector(-11.57265, 11.732661, 0), App.Vector(-4.386169, 15.885311, 0)), False)
sketch4.addGeometry(Part.LineSegment(App.Vector(-4.386169, 15.885311, 0), App.Vector(-7.231059, 20.808612, 0)), False)
sketch4.addConstraint(Sketcher.Constraint("Coincident", 0, 2, 1, 1))
sketch4.addConstraint(Sketcher.Constraint("Coincident", 1, 2, 2, 1))
sketch4.addConstraint(Sketcher.Constraint("Coincident", 2, 2, 3, 1))
sketch4.addConstraint(Sketcher.Constraint("Coincident", 3, 2, 0, 1))
sketch4.addConstraint(Sketcher.Constraint("Coincident", 4, 2, 5, 1))
sketch4.addConstraint(Sketcher.Constraint("Coincident", 5, 2, 6, 1))
sketch4.addConstraint(Sketcher.Constraint("Coincident", 6, 2, 7, 1))
sketch4.addConstraint(Sketcher.Constraint("Coincident", 7, 2, 4, 1))
sketch4.addConstraint(Sketcher.Constraint("Coincident", 8, 2, 9, 1))
sketch4.addConstraint(Sketcher.Constraint("Coincident", 9, 2, 10, 1))
sketch4.addConstraint(Sketcher.Constraint("Coincident", 10, 2, 11, 1))
sketch4.addConstraint(Sketcher.Constraint("Coincident", 11, 2, 8, 1))
sketch4.addConstraint(Sketcher.Constraint("Coincident", 12, 2, 13, 1))
sketch4.addConstraint(Sketcher.Constraint("Coincident", 13, 2, 14, 1))
sketch4.addConstraint(Sketcher.Constraint("Coincident", 14, 2, 15, 1))
sketch4.addConstraint(Sketcher.Constraint("Coincident", 15, 2, 12, 1))
sketch4.addConstraint(Sketcher.Constraint("Coincident", 16, 2, 17, 1))
sketch4.addConstraint(Sketcher.Constraint("Coincident", 17, 2, 18, 1))
sketch4.addConstraint(Sketcher.Constraint("Coincident", 18, 2, 19, 1))
sketch4.addConstraint(Sketcher.Constraint("Coincident", 19, 2, 16, 1))
sketch4.addConstraint(Sketcher.Constraint("Coincident", 20, 2, 21, 1))
sketch4.addConstraint(Sketcher.Constraint("Coincident", 21, 2, 22, 1))
sketch4.addConstraint(Sketcher.Constraint("Coincident", 22, 2, 23, 1))
sketch4.addConstraint(Sketcher.Constraint("Coincident", 23, 2, 20, 1))
sketch4.addConstraint(Sketcher.Constraint("Symmetric", 1, 2, 12, 2, -1, 1))
sketch4.addConstraint(Sketcher.Constraint("Symmetric", 2, 2, 13, 2, -1, 1))
sketch4.addConstraint(Sketcher.Constraint("Symmetric", 3, 2, 14, 2, -1, 1))
sketch4.addConstraint(Sketcher.Constraint("Symmetric", 0, 2, 15, 2, -1, 1))
sketch4.addConstraint(Sketcher.Constraint("Symmetric", 4, 2, 16, 2, -1, 1))
sketch4.addConstraint(Sketcher.Constraint("Symmetric", 5, 2, 17, 2, -1, 1))
sketch4.addConstraint(Sketcher.Constraint("Symmetric", 6, 2, 18, 2, -1, 1))
sketch4.addConstraint(Sketcher.Constraint("Symmetric", 7, 2, 19, 2, -1, 1))
sketch4.addConstraint(Sketcher.Constraint("Symmetric", 8, 2, 20, 2, -1, 1))
sketch4.addConstraint(Sketcher.Constraint("Symmetric", 9, 2, 21, 2, -1, 1))
sketch4.addConstraint(Sketcher.Constraint("Symmetric", 10, 2, 22, 2, -1, 1))
sketch4.addConstraint(Sketcher.Constraint("Symmetric", 11, 2, 23, 2, -1, 1))
sketch4.addConstraint(Sketcher.Constraint("Perpendicular", 0, 1))
sketch4.addConstraint(Sketcher.Constraint("Perpendicular", 1, 2))
sketch4.addConstraint(Sketcher.Constraint("Perpendicular", 2, 3))
sketch4.addConstraint(Sketcher.Constraint("Perpendicular", 4, 5))
sketch4.addConstraint(Sketcher.Constraint("Perpendicular", 5, 6))
sketch4.addConstraint(Sketcher.Constraint("Perpendicular", 6, 7))
sketch4.addConstraint(Sketcher.Constraint("Perpendicular", 8, 9))
sketch4.addConstraint(Sketcher.Constraint("Perpendicular", 9, 10))
sketch4.addConstraint(Sketcher.Constraint("Perpendicular", 10, 11))
sketch4.addConstraint(Sketcher.Constraint("Equal", 3, 4))
sketch4.addConstraint(Sketcher.Constraint("Equal", 2, 5))
sketch4.addConstraint(Sketcher.Constraint("Equal", 6, 8))
sketch4.addConstraint(Sketcher.Constraint("Equal", 7, 9))
sketch4.addConstraint(Sketcher.Constraint("Distance", 1, Q("8.3 mm")))
sketch4.addConstraint(Sketcher.Constraint("DistanceX", 0, 2, 4, 2, Q("7.227999 mm")))
sketch4.addConstraint(Sketcher.Constraint("DistanceX", 2, 2, 0, 2, Q("10.030799 mm")))
sketch4.addConstraint(Sketcher.Constraint("DistanceY", 8, 2, 9, 2, Q("4.923301 mm")))
sketch4.addConstraint(Sketcher.Constraint("Distance", 0, Q("5.686149 mm")))
sketch4.addConstraint(Sketcher.Constraint("DistanceY", -1, 1, 2, 2, Q("15.88854 mm")))
sketch4.addConstraint(Sketcher.Constraint("DistanceY", -1, 1, 5, 2, Q("4.155878 mm")))
sketch4.addConstraint(Sketcher.Constraint("DistanceX", -1, 1, 8, 2, Q("14.41754 mm")))
sketch4.addConstraint(Sketcher.Constraint("DistanceY", 9, 2, -1, 1, Q("11.732661 mm")))
sketch4.addConstraint(Sketcher.Constraint("DistanceX", 5, 2, 6, 2, Q("0.003059 mm")))
sketch4.addConstraint(Sketcher.Constraint("DistanceX", 8, 2, 5, 2, Q("1.529568 mm")))
pocket2 = doc.addObject("PartDesign::Pocket", "Pocket001")
body.addObject(pocket2)
pocket2.Profile = sketch4
pocket2.Type = "ThroughAll"

doc.recompute()
